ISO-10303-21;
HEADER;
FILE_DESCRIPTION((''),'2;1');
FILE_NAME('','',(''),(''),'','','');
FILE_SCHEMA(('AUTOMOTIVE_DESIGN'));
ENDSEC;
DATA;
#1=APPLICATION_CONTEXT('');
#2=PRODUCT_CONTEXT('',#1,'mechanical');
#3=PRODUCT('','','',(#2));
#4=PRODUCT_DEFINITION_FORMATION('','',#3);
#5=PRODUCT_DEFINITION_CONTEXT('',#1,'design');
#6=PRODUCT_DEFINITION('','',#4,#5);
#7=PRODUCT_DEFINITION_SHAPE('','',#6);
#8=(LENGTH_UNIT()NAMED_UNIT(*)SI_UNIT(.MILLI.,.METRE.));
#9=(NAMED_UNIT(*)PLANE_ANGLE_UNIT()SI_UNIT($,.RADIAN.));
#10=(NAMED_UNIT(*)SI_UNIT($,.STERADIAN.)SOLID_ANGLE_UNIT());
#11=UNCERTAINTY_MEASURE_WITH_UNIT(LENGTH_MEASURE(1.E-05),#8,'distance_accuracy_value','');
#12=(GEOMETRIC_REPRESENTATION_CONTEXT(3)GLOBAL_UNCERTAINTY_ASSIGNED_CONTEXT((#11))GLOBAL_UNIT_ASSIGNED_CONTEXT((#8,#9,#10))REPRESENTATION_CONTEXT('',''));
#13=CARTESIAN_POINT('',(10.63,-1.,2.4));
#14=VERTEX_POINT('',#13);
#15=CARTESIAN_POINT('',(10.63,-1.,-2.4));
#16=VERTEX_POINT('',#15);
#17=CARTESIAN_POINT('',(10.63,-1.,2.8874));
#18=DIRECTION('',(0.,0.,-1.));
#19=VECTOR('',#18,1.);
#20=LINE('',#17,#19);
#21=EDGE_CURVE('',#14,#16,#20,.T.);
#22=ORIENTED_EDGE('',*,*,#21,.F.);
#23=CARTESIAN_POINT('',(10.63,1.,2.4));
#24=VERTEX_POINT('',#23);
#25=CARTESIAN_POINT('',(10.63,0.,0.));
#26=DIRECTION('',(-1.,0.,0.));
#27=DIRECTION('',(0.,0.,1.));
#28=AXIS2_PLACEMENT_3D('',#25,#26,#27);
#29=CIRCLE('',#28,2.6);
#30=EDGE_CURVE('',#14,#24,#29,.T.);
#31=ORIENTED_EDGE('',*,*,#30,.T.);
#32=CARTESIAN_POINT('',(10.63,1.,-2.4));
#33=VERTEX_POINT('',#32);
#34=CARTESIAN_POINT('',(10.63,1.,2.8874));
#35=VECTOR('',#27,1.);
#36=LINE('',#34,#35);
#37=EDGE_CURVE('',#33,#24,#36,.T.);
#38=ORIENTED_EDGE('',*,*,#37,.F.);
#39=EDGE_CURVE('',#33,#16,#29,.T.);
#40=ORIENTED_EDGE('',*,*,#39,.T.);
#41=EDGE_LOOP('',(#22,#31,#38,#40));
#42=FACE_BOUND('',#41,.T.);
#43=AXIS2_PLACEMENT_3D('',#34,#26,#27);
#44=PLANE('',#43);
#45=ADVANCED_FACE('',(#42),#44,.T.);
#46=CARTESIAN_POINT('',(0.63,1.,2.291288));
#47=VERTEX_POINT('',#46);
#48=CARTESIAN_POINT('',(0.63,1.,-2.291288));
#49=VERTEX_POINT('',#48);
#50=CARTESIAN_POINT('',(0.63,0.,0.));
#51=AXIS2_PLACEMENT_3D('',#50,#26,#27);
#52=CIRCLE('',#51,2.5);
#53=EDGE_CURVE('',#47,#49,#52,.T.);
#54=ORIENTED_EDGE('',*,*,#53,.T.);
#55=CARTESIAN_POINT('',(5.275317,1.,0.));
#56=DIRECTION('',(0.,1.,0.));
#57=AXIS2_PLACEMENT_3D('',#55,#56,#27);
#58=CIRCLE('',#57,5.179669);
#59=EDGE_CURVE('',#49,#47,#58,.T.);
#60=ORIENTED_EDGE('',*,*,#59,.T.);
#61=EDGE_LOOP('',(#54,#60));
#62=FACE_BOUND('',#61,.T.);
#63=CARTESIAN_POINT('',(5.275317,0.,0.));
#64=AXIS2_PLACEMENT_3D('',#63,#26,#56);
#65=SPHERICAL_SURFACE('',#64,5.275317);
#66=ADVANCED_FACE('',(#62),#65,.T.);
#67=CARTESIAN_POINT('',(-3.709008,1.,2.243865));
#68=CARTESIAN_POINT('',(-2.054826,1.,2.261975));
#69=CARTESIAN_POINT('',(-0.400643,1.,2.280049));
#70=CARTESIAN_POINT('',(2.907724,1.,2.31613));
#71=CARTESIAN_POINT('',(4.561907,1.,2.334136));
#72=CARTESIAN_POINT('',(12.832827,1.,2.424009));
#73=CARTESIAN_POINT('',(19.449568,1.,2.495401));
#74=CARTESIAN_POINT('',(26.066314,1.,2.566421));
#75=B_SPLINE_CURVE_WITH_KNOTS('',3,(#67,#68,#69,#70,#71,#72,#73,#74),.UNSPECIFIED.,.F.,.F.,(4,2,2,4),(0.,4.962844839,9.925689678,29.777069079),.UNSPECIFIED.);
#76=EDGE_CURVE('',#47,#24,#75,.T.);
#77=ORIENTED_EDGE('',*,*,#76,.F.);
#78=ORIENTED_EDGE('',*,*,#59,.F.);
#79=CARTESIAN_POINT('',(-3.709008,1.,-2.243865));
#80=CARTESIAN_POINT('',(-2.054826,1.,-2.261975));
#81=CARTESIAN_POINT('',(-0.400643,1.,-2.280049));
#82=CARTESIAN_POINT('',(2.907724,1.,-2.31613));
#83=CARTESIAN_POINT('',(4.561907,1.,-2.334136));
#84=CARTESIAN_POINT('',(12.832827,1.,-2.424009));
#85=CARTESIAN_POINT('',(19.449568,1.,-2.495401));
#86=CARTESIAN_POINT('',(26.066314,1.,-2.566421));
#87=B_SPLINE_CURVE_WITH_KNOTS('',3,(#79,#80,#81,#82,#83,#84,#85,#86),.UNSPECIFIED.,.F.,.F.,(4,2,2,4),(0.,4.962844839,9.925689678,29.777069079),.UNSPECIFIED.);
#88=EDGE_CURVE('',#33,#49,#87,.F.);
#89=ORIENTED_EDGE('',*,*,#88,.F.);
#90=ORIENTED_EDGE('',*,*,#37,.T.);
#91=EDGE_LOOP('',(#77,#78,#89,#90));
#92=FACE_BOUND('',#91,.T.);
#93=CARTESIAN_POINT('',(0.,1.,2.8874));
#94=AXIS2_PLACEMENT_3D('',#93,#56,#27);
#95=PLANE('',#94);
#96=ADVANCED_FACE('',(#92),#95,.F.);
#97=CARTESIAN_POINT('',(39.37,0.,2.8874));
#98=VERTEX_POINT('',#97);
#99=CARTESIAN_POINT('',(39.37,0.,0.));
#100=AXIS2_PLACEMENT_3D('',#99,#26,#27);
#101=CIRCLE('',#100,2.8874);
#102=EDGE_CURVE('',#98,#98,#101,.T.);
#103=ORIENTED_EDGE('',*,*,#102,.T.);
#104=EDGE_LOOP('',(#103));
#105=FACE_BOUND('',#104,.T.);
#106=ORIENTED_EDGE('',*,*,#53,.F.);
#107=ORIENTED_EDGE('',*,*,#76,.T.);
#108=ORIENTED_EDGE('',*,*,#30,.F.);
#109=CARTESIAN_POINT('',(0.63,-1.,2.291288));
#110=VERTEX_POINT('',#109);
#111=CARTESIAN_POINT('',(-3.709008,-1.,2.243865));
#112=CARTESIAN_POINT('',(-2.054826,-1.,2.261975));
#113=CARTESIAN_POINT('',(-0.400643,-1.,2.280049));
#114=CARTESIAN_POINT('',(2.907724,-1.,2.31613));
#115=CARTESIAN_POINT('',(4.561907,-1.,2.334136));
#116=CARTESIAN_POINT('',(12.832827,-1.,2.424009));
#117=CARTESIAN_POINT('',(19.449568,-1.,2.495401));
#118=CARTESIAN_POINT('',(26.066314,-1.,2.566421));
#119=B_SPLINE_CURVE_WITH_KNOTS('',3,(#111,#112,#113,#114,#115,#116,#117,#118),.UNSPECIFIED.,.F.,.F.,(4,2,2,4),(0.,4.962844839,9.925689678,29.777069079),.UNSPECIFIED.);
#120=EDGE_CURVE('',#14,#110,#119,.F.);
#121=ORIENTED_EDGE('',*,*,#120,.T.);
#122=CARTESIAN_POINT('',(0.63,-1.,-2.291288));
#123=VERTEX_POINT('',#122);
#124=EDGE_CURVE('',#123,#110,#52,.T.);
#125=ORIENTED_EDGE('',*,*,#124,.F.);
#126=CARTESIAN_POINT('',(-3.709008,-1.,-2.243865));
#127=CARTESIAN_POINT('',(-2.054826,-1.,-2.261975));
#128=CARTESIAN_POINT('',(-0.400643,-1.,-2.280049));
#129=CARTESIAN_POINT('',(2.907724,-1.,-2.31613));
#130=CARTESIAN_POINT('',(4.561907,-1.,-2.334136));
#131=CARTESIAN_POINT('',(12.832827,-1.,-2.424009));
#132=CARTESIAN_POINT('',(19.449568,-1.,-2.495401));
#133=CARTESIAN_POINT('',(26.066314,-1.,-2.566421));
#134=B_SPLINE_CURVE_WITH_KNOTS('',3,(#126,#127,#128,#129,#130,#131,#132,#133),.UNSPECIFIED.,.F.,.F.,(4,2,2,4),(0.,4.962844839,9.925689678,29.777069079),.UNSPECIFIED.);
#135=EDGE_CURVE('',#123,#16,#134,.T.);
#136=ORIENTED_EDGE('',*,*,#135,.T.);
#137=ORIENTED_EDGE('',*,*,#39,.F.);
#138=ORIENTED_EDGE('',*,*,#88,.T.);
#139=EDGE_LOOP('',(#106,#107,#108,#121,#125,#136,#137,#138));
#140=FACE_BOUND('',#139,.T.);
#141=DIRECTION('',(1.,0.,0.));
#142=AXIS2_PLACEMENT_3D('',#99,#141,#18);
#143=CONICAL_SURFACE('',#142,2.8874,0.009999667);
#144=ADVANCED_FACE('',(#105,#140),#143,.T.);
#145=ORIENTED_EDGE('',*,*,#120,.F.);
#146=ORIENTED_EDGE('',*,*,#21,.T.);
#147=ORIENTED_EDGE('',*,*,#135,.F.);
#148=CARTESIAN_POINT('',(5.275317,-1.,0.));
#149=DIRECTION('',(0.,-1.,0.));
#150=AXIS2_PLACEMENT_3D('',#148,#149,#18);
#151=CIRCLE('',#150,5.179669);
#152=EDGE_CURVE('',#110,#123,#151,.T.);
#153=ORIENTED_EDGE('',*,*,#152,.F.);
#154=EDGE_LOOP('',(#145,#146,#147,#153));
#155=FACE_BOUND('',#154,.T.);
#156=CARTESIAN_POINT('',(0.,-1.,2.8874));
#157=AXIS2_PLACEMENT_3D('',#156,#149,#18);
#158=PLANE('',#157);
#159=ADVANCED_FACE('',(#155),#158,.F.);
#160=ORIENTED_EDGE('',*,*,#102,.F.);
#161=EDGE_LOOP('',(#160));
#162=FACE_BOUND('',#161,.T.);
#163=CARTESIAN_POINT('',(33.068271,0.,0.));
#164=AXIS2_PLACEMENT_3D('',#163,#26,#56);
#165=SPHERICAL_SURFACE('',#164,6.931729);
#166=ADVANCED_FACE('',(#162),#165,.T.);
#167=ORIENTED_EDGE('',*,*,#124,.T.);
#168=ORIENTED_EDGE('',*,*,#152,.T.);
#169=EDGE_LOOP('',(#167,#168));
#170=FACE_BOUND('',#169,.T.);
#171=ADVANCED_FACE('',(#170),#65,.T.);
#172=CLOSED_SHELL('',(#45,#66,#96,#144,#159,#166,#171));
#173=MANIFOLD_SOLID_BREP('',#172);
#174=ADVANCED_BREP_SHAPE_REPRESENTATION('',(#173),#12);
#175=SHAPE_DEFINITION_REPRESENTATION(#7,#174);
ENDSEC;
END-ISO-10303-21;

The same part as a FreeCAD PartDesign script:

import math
import FreeCAD as App
import Part
import Sketcher


def add_polygon(sketch, points):
    """Adds a closed chain of lines whose ends are joined by coincident constraints."""
    first, n = sketch.GeometryCount, len(points)
    for a, b in zip(points, points[1:] + points[:1]):
        sketch.addGeometry(Part.LineSegment(App.Vector(*a, 0), App.Vector(*b, 0)), False)
    for i in range(n):
        sketch.addConstraint(Sketcher.Constraint("Coincident", first + i, 2, first + (i + 1) % n, 1))

doc = App.newDocument("Part")
body = doc.addObject("PartDesign::Body", "Body")

# Sketch on XY plane
sketch1 = doc.addObject("Sketcher::SketchObject", "Sketch")
body.addObject(sketch1)
sketch1.AttachmentSupport = (doc.XY_Plane, [""])
sketch1.MapMode = "FlatFace"
sketch1.addGeometry(Part.LineSegment(App.Vector(39.4, 2.9, 0), App.Vector(0.6, 2.5, 0)), False)
sketch1.addGeometry(Part.ArcOfCircle(Part.Circle(App.Vector(5.3, 0, 0), App.Vector(0, 0, 1), 5.3), math.radians(152), math.radians(180)), False)
sketch1.addGeometry(Part.LineSegment(App.Vector(0, 0, 0), App.Vector(40, 0, 0)), False)
sketch1.addGeometry(Part.ArcOfCircle(Part.Circle(App.Vector(33.1, 0, 0), App.Vector(0, 0, 1), 6.9), math.radians(0), math.radians(25)), False)
sketch1.addConstraint(Sketcher.Constraint("Coincident", 0, 2, 1, 1))
sketch1.addConstraint(Sketcher.Constraint("Coincident", 1, 2, 2, 1))
sketch1.addConstraint(Sketcher.Constraint("Coincident", 2, 2, 3, 1))
sketch1.addConstraint(Sketcher.Constraint("Coincident", 3, 2, 0, 1))
sketch1.addConstraint(Sketcher.Constraint("Horizontal", 2))
sketch1.addConstraint(Sketcher.Constraint("Coincident", 1, 2, -1, 1))
sketch1.addConstraint(Sketcher.Constraint("PointOnObject", 1, 3, -1))
sketch1.addConstraint(Sketcher.Constraint("PointOnObject", 3, 3, -1))
sketch1.addConstraint(Sketcher.Constraint("DistanceX", 2, 1, 2, 2, 40.0))
sketch1.addConstraint(Sketcher.Constraint("DistanceY", -1, 1, 0, 2, 2.5))
sketch1.addConstraint(Sketcher.Constraint("DistanceX", -1, 1, 0, 2, 0.63))
sketch1.addConstraint(Sketcher.Constraint("DistanceX", -1, 1, 3, 2, 39.37))
sketch1.addConstraint(Sketcher.Constraint("Radius", 3, 6.931729))
revolution = doc.addObject("PartDesign::Revolution", "Revolution")
body.addObject(revolution)
revolution.Profile = sketch1
revolution.ReferenceAxis = (sketch1, ["H_Axis"])
revolution.Angle = 360

# Sketch on YZ plane
sketch2 = doc.addObject("Sketcher::SketchObject", "Sketch001")
body.addObject(sketch2)
sketch2.AttachmentSupport = (doc.YZ_Plane, [""])
sketch2.MapMode = "FlatFace"
sketch2.AttachmentOffset = App.Placement(App.Vector(0, 0, 10.63), App.Rotation())
add_polygon(sketch2, [(1, 2.9), (-1, 2.9), (-1, -2.9), (1, -2.9)])  # lines 0-3
sketch2.addConstraint(Sketcher.Constraint("Horizontal", 0))
sketch2.addConstraint(Sketcher.Constraint("Vertical", 1))
sketch2.addConstraint(Sketcher.Constraint("Horizontal", 2))
sketch2.addConstraint(Sketcher.Constraint("Vertical", 3))
sketch2.addConstraint(Sketcher.Constraint("Symmetric", 0, 2, 2, 2, -1, 1))
sketch2.addConstraint(Sketcher.Constraint("DistanceX", 0, 2, 0, 1, 2.0))
sketch2.addConstraint(Sketcher.Constraint("DistanceY", 1, 2, 1, 1, 5.7748))
pocket1 = doc.addObject("PartDesign::Pocket", "Pocket")
body.addObject(pocket1)
pocket1.Profile = sketch2
pocket1.Type = "ThroughAll"

doc.recompute()
